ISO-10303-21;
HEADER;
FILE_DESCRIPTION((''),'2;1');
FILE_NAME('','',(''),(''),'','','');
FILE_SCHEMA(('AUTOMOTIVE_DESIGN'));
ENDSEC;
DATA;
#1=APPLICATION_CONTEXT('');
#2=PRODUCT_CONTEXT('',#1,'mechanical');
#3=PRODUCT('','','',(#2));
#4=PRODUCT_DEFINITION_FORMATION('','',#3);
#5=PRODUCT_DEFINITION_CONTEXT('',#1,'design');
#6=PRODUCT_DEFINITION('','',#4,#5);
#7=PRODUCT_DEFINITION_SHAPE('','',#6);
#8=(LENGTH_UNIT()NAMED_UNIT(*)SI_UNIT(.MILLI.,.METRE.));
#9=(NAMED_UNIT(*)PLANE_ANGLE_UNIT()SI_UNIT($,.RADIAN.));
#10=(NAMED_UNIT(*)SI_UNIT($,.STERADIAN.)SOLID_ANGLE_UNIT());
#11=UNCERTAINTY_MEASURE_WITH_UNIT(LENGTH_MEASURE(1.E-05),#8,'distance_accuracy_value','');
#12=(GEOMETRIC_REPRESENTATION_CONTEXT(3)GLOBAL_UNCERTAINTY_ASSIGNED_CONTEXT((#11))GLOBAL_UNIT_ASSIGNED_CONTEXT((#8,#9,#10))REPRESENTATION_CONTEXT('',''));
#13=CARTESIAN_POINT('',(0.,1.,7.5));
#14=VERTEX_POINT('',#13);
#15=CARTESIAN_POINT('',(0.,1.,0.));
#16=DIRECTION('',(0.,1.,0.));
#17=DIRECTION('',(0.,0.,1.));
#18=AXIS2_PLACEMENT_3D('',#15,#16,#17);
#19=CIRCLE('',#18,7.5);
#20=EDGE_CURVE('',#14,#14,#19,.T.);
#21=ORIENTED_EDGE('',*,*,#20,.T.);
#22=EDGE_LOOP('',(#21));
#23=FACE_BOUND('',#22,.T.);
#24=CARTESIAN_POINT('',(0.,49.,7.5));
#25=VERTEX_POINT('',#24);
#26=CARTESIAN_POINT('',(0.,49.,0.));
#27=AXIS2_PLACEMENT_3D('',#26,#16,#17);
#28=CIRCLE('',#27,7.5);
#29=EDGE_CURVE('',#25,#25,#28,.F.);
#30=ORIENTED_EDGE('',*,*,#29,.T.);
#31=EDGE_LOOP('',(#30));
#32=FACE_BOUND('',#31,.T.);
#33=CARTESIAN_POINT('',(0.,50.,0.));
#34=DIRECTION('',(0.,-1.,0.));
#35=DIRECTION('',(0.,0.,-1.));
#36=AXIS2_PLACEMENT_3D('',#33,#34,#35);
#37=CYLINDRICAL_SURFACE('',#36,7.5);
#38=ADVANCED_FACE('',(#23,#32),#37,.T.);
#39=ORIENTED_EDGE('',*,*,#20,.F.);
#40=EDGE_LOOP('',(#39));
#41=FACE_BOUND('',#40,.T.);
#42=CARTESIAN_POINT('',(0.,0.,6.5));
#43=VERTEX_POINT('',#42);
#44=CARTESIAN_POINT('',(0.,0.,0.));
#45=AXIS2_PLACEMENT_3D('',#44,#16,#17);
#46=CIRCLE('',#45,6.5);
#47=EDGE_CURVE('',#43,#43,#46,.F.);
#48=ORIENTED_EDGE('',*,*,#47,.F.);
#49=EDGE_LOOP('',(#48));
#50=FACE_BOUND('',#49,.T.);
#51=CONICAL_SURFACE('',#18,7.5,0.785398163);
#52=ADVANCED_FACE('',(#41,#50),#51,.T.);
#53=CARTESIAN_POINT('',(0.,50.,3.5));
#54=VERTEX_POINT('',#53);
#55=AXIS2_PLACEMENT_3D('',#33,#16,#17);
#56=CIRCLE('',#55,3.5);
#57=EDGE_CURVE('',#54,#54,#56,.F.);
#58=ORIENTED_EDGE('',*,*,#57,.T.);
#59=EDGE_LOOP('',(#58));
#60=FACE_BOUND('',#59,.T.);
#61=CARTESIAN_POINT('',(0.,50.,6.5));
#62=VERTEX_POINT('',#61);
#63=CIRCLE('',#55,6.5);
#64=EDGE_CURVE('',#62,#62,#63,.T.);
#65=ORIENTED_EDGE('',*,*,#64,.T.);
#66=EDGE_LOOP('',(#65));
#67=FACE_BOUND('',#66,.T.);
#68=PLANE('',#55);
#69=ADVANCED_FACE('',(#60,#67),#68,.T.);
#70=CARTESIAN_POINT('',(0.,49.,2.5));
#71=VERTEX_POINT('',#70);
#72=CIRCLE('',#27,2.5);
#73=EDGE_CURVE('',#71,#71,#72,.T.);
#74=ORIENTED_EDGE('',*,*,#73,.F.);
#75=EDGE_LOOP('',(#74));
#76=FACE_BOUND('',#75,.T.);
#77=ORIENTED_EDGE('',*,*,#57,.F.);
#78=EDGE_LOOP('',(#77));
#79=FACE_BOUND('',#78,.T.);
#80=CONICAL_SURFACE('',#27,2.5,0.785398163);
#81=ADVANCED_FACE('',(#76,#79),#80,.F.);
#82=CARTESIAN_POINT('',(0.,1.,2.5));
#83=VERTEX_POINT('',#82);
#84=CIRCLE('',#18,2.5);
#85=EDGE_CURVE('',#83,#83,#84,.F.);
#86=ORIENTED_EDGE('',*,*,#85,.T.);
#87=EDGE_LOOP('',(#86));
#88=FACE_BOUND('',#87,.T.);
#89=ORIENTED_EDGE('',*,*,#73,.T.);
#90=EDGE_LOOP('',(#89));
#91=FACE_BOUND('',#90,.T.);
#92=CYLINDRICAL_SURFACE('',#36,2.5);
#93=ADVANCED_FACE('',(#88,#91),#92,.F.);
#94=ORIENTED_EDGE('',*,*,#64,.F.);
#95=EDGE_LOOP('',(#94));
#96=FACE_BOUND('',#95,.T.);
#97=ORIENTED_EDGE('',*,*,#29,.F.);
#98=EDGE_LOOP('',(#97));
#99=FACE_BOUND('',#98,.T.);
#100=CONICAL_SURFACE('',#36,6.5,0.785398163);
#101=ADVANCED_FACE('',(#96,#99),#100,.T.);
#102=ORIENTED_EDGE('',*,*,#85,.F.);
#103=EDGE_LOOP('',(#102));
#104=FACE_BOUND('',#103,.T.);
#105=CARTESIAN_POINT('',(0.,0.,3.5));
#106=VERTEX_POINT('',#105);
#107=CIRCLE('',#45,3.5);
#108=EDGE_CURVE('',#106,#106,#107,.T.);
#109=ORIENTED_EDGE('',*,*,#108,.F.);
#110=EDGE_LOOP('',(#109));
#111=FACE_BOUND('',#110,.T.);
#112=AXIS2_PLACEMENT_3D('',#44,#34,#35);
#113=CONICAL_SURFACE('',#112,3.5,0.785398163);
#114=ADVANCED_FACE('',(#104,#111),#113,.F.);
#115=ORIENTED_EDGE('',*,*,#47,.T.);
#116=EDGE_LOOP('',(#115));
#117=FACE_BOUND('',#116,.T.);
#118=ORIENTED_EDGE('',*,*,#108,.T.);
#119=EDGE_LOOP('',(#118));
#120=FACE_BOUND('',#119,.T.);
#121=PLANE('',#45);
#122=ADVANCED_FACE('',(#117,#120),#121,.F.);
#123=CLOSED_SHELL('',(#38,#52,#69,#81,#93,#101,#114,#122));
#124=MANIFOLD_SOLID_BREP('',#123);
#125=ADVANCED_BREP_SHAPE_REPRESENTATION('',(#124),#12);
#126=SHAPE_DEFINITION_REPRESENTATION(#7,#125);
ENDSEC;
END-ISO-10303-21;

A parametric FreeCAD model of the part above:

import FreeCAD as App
import Part
import Sketcher

V = App.Vector
Q = App.Units.Quantity


def edges_at(feature, points):
    """Names of the edges that pass closest to the given points."""
    edges = feature.Shape.Edges
    near = lambda p: min(range(len(edges)), key=lambda i: edges[i].distToShape(Part.Vertex(*p))[0])
    return sorted({f"Edge{near(p) + 1}" for p in points})

doc = App.newDocument("Part")
params = doc.addObject("Spreadsheet::Sheet", "Params")
for row, (alias, value) in enumerate([
    ("sketch1_diameter", "15 mm"),
    ("sketch1_diameter2", "5 mm"),
    ("pad1_length", "50 mm"),
    ("chamfer_size", "1 mm"),
], start=1):
    params.set(f"A{row}", alias)
    params.set(f"B{row}", "=" + value)
    params.setAlias(f"B{row}", alias)

body = doc.addObject("PartDesign::Body", "Body")

sketch1 = body.newObject("Sketcher::SketchObject", "Sketch")
sketch1.AttachmentSupport = (doc.getObject("XZ_Plane"), [""])
sketch1.MapMode = "FlatFace"
sketch1.addGeometry([
    Part.Circle(V(0, 0, 0), V(0, 0, 1), 7.5),
    Part.Circle(V(0, 0, 0), V(0, 0, 1), 2.5),
], False)
sketch1.addConstraint([
    Sketcher.Constraint("Coincident", 0, 3, -1, 1),
    Sketcher.Constraint("Coincident", 1, 3, -1, 1),
    Sketcher.Constraint("Diameter", 0, Q("15 mm")),
    Sketcher.Constraint("Diameter", 1, Q("5 mm")),
])
sketch1.setExpression("Constraints[2]", "Params.sketch1_diameter")
sketch1.setExpression("Constraints[3]", "Params.sketch1_diameter2")
pad1 = body.newObject("PartDesign::Pad", "Pad")
pad1.Profile = sketch1
pad1.setExpression("Length", "Params.pad1_length")
pad1.Reversed = True
doc.recompute()

chamfer = body.newObject("PartDesign::Chamfer", "Chamfer")
chamfer.Base = (pad1, edges_at(pad1, [
    (-7.5, 0, 0),
    (-7.5, 50, 0),
    (-2.5, 0, 0),
    (-2.5, 50, 0),
]))
chamfer.setExpression("Size", "Params.chamfer_size")

doc.recompute()
